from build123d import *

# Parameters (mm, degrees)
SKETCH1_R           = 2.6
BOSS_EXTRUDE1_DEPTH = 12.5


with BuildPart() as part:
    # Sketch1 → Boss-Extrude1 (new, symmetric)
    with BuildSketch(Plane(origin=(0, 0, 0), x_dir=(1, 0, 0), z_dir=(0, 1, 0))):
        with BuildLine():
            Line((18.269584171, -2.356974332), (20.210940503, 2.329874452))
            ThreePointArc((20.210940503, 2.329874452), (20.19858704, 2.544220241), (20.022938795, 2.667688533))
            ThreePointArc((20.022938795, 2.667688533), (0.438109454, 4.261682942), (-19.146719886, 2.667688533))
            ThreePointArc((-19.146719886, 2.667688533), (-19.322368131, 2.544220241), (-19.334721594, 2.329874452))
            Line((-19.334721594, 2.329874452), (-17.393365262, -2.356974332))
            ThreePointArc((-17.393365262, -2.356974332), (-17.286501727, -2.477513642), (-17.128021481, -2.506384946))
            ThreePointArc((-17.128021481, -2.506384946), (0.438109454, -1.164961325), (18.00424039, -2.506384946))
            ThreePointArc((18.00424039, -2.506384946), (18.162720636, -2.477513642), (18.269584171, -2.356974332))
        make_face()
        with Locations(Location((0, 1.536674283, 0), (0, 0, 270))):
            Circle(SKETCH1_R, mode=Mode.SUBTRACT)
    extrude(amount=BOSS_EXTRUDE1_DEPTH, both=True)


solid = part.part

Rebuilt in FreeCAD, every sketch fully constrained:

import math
import FreeCAD as App
import Part
import Sketcher

V = App.Vector

doc = App.newDocument("Part")
body = doc.addObject("PartDesign::Body", "Body")

# Sketch on XZ plane
sketch1 = doc.addObject("Sketcher::SketchObject", "Sketch")
body.addObject(sketch1)
sketch1.AttachmentSupport = (doc.XZ_Plane, [""])
sketch1.MapMode = "FlatFace"
sketch1.addGeometry([
    Part.LineSegment(V(18.269584, 2.356974, 0), V(20.210941, -2.329874, 0)),  # 0
    Part.ArcOfCircle(Part.Circle(V(19.983051, -2.424269, 0), V(0, 0, 1), 0.246666), math.radians(-80.693992), math.radians(22.5)),  # 1
    Part.ArcOfCircle(Part.Circle(V(0.438109, 116.85115, 0), V(0, 0, 1), 121.112833), math.radians(-99.306008), math.radians(-80.693992)),  # 2
    Part.ArcOfCircle(Part.Circle(V(-19.106832, -2.424269, 0), V(0, 0, 1), 0.246666), math.radians(157.5), math.radians(260.693992)),  # 3
    Part.LineSegment(V(-19.334722, -2.329874, 0), V(-17.393365, 2.356974, 0)),  # 4
    Part.ArcOfCircle(Part.Circle(V(-17.165476, 2.262579, 0), V(0, 0, 1), 0.246666), math.radians(81.266257), math.radians(157.5)),  # 5
    Part.ArcOfCircle(Part.Circle(V(0.438109, 116.85115, 0), V(0, 0, 1), 115.686189), math.radians(-98.733743), math.radians(-81.266257)),  # 6
    Part.ArcOfCircle(Part.Circle(V(18.041695, 2.262579, 0), V(0, 0, 1), 0.246666), math.radians(22.5), math.radians(98.733743)),  # 7
    Part.Circle(V(0, -1.536674, 0), V(0, 0, 1), 2.6),  # 8
], False)
sketch1.addConstraint([
    Sketcher.Constraint("Coincident", 0, 2, 1, 2),
    Sketcher.Constraint("Coincident", 1, 1, 2, 2),
    Sketcher.Constraint("Coincident", 2, 1, 3, 2),
    Sketcher.Constraint("Coincident", 3, 1, 4, 1),
    Sketcher.Constraint("Coincident", 4, 2, 5, 2),
    Sketcher.Constraint("Coincident", 5, 1, 6, 1),
    Sketcher.Constraint("Coincident", 6, 2, 7, 2),
    Sketcher.Constraint("Coincident", 7, 1, 0, 1),
    Sketcher.Constraint("Coincident", 6, 3, 2, 3),
    Sketcher.Constraint("PointOnObject", 8, 3, -2),
    Sketcher.Constraint("Diameter", 8, 5.2),
    Sketcher.Constraint("Radius", 6, 115.686189),
    Sketcher.Constraint("Radius", 1, 0.246666),
    Sketcher.Constraint("Radius", 2, 121.112833),
    Sketcher.Constraint("Radius", 3, 0.246666),
    Sketcher.Constraint("Radius", 5, 0.246666),
    Sketcher.Constraint("Radius", 7, 0.246666),
    Sketcher.Constraint("DistanceX", 1, 1, 0, 2, 0.188002),
    Sketcher.Constraint("DistanceX", 3, 1, 2, 1, 0.188002),
    Sketcher.Constraint("DistanceY", 0, 2, 8, 3, 0.7932),
    Sketcher.Constraint("DistanceY", 3, 1, 8, 3, 0.7932),
    Sketcher.Constraint("DistanceX", 3, 1, 5, 1, 2.2067),
    Sketcher.Constraint("DistanceX", 6, 2, 0, 2, 2.2067),
    Sketcher.Constraint("Distance", 0, 5.073009),
    Sketcher.Constraint("Distance", 4, 5.073009),
    Sketcher.Constraint("DistanceX", -1, 1, 1, 3, 19.983051),
    Sketcher.Constraint("DistanceY", 1, 3, -1, 1, 2.424269),
    Sketcher.Constraint("DistanceX", -1, 1, 2, 3, 0.438109),
    Sketcher.Constraint("DistanceY", 3, 3, -1, 1, 2.424269),
    Sketcher.Constraint("DistanceY", -1, 1, 5, 3, 2.262579),
    Sketcher.Constraint("DistanceY", -1, 1, 7, 3, 2.262579),
    Sketcher.Constraint("DistanceX", -1, 1, 0, 2, 20.210941),
])
pad1 = doc.addObject("PartDesign::Pad", "Pad")
body.addObject(pad1)
pad1.Profile = sketch1
pad1.Length = 25
pad1.Midplane = True

doc.recompute()
